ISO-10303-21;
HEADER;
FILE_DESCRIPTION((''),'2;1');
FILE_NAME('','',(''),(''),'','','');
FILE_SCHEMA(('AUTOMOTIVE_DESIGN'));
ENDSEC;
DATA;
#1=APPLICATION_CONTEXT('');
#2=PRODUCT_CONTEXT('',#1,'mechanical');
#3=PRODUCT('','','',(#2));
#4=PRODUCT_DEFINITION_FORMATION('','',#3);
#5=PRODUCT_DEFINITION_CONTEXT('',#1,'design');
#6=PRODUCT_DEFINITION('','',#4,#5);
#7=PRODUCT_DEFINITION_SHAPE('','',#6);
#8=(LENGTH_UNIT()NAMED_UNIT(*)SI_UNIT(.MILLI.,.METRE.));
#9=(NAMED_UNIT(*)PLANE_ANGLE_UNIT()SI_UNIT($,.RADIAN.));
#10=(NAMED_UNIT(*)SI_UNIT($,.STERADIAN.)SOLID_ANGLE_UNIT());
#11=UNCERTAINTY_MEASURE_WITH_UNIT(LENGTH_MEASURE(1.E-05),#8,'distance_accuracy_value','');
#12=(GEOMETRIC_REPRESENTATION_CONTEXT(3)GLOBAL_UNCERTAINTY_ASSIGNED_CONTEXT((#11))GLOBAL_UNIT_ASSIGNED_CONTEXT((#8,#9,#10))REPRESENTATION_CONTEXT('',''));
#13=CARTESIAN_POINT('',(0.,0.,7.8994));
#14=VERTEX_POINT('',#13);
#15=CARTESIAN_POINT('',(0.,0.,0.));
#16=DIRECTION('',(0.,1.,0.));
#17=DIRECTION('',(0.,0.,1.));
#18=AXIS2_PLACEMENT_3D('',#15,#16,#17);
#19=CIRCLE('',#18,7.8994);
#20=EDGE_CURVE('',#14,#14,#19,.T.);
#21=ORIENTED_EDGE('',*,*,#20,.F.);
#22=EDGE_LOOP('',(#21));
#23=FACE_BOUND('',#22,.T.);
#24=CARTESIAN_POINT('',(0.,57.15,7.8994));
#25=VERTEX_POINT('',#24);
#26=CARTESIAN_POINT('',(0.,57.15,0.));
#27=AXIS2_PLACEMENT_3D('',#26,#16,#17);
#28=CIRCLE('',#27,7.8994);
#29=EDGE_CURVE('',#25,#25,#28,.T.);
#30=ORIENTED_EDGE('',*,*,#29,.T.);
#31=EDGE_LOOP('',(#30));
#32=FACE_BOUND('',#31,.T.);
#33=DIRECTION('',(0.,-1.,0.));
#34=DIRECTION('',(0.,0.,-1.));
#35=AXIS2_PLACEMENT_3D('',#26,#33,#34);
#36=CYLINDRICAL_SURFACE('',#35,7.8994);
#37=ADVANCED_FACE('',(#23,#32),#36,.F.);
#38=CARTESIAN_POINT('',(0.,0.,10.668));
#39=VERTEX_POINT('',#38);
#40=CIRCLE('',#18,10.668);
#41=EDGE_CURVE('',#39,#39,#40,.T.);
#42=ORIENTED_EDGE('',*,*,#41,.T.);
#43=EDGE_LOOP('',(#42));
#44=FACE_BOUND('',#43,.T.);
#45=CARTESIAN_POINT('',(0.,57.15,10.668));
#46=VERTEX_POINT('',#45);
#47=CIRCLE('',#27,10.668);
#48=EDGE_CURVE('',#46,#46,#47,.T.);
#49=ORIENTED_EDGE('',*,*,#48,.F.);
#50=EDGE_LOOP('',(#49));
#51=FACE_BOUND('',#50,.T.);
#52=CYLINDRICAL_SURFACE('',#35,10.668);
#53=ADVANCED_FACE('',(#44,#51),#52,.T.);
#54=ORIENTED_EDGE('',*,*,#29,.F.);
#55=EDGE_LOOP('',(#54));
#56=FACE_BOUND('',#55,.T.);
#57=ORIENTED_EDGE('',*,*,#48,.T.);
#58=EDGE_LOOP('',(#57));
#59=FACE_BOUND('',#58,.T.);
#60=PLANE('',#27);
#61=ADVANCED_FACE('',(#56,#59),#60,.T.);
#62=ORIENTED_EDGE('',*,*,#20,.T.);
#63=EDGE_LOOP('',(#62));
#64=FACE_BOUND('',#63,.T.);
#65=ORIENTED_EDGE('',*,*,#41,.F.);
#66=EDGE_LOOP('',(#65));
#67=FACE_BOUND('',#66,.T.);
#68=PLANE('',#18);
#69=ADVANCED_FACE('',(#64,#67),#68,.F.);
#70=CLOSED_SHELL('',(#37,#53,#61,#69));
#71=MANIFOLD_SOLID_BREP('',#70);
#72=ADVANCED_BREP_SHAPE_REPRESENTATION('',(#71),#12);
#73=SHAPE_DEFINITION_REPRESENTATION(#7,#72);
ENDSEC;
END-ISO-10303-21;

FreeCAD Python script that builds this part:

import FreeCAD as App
import Part
import Sketcher
Q = App.Units.Quantity

doc = App.newDocument("Part")
body = doc.addObject("PartDesign::Body", "Body")

# Sketch on XZ plane
sketch1 = body.newObject("Sketcher::SketchObject", "Sketch")
sketch1.AttachmentSupport = (doc.getObject("XZ_Plane"), [""])
sketch1.MapMode = "FlatFace"
sketch1.addGeometry([
    Part.Circle(App.Vector(0, 0, 0), App.Vector(0, 0, 1), 11),
    Part.Circle(App.Vector(0, 0, 0), App.Vector(0, 0, 1), 8),
], False)
sketch1.addConstraint([
    Sketcher.Constraint("Coincident", 0, 3, -1, 1),
    Sketcher.Constraint("Coincident", 1, 3, -1, 1),
    Sketcher.Constraint("Diameter", 0, Q("0.84 in")),
    Sketcher.Constraint("Diameter", 1, Q("0.622 in")),
])
pad1 = body.newObject("PartDesign::Pad", "Pad")
pad1.Profile = sketch1
pad1.Length = Q("2.25 in")
pad1.Reversed = True

doc.recompute()
